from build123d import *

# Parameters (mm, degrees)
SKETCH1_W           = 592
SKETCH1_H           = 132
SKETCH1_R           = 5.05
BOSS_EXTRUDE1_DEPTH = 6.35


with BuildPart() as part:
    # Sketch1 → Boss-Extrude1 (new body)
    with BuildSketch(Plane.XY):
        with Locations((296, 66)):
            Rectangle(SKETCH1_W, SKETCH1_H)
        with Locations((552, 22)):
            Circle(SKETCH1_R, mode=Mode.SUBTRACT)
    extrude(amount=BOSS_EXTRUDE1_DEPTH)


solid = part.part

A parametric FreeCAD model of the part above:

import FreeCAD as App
import Part
import Sketcher
from FreeCAD import Vector
Q = App.Units.Quantity


def add_polygon(sketch, points):
    """Adds a closed chain of lines whose ends are joined by coincident constraints."""
    first, n = sketch.GeometryCount, len(points)
    for a, b in zip(points, points[1:] + points[:1]):
        sketch.addGeometry(Part.LineSegment(App.Vector(*a, 0), App.Vector(*b, 0)), False)
    for i in range(n):
        sketch.addConstraint(Sketcher.Constraint("Coincident", first + i, 2, first + (i + 1) % n, 1))

doc = App.newDocument("Part")
body = doc.addObject("PartDesign::Body", "Body")

# Sketch on XY plane
sketch1 = body.newObject("Sketcher::SketchObject", "Sketch")
sketch1.AttachmentSupport = (doc.getObject("XY_Plane"), [""])
sketch1.MapMode = "FlatFace"
add_polygon(sketch1, [(0, 132), (0, 0), (592, 0), (592, 132)])  # lines 0-3
sketch1.addGeometry(Part.Circle(Vector(552, 22, 0), Vector(0, 0, 1), 5), False)  # 4
sketch1.addConstraint(Sketcher.Constraint("Vertical", 0))
sketch1.addConstraint(Sketcher.Constraint("Horizontal", 1))
sketch1.addConstraint(Sketcher.Constraint("Vertical", 2))
sketch1.addConstraint(Sketcher.Constraint("Horizontal", 3))
sketch1.addConstraint(Sketcher.Constraint("Coincident", 0, 2, -1, 1))
sketch1.addConstraint(Sketcher.Constraint("Diameter", 4, Q("10.1 mm")))
sketch1.addConstraint(Sketcher.Constraint("DistanceX", 1, 1, 1, 2, Q("592 mm")))
sketch1.addConstraint(Sketcher.Constraint("DistanceY", 0, 2, 0, 1, Q("132 mm")))
sketch1.addConstraint(Sketcher.Constraint("DistanceX", -1, 1, 4, 3, Q("552 mm")))
sketch1.addConstraint(Sketcher.Constraint("DistanceY", -1, 1, 4, 3, Q("22 mm")))
pad1 = body.newObject("PartDesign::Pad", "Pad")
pad1.Profile = sketch1
pad1.Length = 6.35

doc.recompute()
